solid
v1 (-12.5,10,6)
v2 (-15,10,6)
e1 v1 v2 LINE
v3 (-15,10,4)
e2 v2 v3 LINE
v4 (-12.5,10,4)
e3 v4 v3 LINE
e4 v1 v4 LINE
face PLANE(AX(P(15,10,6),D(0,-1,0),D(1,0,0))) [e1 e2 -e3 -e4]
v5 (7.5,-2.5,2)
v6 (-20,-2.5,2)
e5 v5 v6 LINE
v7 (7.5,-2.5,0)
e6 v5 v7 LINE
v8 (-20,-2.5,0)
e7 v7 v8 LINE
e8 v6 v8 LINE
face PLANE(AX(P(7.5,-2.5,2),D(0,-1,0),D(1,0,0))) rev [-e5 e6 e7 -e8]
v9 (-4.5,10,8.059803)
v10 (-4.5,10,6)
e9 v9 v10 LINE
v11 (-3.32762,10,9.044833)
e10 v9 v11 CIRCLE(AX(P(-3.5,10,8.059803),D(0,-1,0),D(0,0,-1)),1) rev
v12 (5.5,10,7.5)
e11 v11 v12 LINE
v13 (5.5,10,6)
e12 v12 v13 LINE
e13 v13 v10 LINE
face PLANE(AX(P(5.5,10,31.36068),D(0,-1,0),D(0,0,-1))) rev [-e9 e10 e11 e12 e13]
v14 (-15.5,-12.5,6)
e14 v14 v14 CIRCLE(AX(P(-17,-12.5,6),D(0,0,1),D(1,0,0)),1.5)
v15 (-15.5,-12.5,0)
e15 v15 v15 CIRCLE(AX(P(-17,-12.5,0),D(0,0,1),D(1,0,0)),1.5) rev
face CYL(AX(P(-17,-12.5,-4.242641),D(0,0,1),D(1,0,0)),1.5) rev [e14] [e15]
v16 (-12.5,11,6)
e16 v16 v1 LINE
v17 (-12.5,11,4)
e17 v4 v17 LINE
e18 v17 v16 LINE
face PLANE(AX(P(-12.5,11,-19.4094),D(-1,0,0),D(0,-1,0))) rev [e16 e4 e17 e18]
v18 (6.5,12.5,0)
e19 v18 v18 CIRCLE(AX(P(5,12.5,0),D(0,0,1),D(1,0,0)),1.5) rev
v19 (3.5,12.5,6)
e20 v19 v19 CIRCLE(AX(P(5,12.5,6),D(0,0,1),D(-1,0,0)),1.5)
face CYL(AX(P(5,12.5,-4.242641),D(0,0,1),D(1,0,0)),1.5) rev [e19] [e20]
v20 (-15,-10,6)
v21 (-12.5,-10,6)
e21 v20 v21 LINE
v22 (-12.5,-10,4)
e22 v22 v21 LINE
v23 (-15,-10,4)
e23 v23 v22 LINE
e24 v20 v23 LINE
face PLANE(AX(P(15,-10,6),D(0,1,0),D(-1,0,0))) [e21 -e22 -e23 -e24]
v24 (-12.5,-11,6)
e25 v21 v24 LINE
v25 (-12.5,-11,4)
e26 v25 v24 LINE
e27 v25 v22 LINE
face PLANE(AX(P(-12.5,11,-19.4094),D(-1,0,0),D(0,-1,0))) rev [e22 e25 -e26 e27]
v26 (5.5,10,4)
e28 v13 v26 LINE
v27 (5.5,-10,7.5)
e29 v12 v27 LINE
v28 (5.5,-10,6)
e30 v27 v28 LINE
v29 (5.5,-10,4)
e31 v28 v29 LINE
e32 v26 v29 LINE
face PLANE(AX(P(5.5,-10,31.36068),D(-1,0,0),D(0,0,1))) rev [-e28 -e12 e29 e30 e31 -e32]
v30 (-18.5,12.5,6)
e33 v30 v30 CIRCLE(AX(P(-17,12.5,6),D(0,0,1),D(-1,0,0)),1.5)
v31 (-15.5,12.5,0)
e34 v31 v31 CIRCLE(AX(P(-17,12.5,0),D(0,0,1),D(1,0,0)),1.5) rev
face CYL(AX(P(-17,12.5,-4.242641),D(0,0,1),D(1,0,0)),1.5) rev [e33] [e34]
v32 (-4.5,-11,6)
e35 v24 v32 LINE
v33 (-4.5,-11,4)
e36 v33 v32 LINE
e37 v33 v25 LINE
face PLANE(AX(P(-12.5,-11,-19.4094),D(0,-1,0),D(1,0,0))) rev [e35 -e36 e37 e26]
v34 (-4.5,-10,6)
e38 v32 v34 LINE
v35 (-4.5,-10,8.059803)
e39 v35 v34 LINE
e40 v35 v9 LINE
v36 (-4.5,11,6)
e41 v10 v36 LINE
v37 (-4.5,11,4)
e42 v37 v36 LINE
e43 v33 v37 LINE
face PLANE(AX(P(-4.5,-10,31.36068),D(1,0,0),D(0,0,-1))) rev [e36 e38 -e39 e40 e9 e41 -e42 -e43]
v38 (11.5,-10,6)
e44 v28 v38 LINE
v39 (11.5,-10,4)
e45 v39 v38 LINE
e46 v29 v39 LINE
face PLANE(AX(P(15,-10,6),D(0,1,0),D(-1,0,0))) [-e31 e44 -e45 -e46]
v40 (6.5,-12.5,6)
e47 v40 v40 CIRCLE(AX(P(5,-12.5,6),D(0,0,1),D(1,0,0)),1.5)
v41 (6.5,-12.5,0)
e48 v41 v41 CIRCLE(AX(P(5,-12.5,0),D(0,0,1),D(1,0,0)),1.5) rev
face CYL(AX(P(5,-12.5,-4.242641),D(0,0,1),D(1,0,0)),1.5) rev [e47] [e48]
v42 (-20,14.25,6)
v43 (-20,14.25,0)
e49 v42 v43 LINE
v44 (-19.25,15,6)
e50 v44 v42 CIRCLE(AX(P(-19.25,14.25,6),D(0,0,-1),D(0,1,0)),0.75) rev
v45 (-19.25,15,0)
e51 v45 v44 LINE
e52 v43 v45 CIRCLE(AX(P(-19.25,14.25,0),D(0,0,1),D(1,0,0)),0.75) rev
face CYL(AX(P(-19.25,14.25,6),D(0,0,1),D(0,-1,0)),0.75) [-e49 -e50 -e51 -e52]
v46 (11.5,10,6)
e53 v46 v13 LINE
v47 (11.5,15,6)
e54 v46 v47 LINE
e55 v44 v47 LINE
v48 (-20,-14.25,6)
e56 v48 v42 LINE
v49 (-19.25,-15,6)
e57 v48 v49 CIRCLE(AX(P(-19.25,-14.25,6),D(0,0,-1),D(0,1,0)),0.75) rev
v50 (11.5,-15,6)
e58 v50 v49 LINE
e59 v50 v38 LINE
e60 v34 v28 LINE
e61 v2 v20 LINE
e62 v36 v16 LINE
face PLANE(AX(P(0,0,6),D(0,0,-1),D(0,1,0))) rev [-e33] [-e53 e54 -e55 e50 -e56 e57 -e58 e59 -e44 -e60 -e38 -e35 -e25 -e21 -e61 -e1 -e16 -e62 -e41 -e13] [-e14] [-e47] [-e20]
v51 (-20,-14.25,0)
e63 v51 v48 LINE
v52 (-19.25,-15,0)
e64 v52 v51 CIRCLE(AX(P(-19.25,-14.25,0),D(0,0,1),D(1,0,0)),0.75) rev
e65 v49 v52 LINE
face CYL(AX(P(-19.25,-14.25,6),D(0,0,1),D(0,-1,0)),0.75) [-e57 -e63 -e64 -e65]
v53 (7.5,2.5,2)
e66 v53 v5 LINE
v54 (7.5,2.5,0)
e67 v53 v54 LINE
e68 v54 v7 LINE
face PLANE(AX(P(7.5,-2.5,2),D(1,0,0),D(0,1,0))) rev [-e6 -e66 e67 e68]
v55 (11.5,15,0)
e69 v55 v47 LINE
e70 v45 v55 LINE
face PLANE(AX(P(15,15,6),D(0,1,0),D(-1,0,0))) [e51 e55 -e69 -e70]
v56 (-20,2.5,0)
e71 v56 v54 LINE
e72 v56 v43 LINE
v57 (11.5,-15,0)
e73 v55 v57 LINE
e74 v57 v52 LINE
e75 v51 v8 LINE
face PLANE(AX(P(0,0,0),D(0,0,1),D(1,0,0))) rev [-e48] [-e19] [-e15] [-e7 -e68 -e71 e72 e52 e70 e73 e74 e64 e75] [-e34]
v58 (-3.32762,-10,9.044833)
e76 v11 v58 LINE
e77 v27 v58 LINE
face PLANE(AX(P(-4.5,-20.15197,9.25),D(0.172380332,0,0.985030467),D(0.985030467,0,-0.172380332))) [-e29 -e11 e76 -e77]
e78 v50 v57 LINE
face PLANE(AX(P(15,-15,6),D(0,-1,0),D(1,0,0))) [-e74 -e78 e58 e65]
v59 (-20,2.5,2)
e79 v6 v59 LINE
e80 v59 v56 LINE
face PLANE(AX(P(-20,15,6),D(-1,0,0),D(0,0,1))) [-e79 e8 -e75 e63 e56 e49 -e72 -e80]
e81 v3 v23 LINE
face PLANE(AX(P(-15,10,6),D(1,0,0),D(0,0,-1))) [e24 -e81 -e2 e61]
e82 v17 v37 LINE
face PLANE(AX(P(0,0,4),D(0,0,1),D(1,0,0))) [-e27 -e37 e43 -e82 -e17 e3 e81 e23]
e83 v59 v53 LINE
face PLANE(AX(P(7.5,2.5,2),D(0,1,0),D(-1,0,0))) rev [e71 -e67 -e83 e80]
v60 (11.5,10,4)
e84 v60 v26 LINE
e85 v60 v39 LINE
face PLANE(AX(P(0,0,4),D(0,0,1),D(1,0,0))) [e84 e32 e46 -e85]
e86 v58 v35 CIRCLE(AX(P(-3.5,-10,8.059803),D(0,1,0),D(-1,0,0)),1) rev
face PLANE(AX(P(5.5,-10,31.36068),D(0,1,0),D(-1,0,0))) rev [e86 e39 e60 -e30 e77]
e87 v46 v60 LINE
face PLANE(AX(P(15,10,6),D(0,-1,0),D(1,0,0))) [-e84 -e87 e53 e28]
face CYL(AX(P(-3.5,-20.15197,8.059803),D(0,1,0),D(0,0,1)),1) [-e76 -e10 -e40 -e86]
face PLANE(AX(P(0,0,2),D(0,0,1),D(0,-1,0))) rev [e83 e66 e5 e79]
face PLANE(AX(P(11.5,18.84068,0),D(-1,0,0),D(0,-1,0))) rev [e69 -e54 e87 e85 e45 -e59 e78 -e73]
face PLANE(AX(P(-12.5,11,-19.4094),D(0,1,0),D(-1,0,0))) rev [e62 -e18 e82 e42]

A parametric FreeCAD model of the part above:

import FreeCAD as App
import Part
import Sketcher
Q = App.Units.Quantity


def edges_at(feature, points):
    """Names of the edges that pass closest to the given points."""
    edges = feature.Shape.Edges
    near = lambda p: min(range(len(edges)), key=lambda i: edges[i].distToShape(Part.Vertex(*p))[0])
    return sorted({f"Edge{near(p) + 1}" for p in points})

doc = App.newDocument("Part")
body = doc.addObject("PartDesign::Body", "Body")

# Sketch on XY plane
sketch1 = doc.addObject("Sketcher::SketchObject", "Sketch")
body.addObject(sketch1)
sketch1.AttachmentSupport = (doc.XY_Plane, [""])
sketch1.MapMode = "FlatFace"
sketch1.addGeometry(Part.LineSegment(App.Vector(-15, 10, 0), App.Vector(-15, -10, 0)), False)
sketch1.addGeometry(Part.LineSegment(App.Vector(-15, -10, 0), App.Vector(15, -10, 0)), False)
sketch1.addGeometry(Part.LineSegment(App.Vector(15, -10, 0), App.Vector(15, 10, 0)), False)
sketch1.addGeometry(Part.LineSegment(App.Vector(15, 10, 0), App.Vector(-15, 10, 0)), False)
sketch1.addConstraint(Sketcher.Constraint("Coincident", 0, 2, 1, 1))
sketch1.addConstraint(Sketcher.Constraint("Coincident", 1, 2, 2, 1))
sketch1.addConstraint(Sketcher.Constraint("Coincident", 2, 2, 3, 1))
sketch1.addConstraint(Sketcher.Constraint("Coincident", 3, 2, 0, 1))
sketch1.addConstraint(Sketcher.Constraint("Vertical", 0))
sketch1.addConstraint(Sketcher.Constraint("Horizontal", 1))
sketch1.addConstraint(Sketcher.Constraint("Vertical", 2))
sketch1.addConstraint(Sketcher.Constraint("Horizontal", 3))
sketch1.addConstraint(Sketcher.Constraint("Symmetric", 0, 2, 2, 2, -1, 1))
sketch1.addConstraint(Sketcher.Constraint("DistanceX", 1, 1, 1, 2, Q("30 mm")))
sketch1.addConstraint(Sketcher.Constraint("DistanceY", 0, 2, 0, 1, Q("20 mm")))
pad1 = doc.addObject("PartDesign::Pad", "Pad")
body.addObject(pad1)
pad1.Profile = sketch1
pad1.Length = 1

# Sketch on XY plane
sketch2 = doc.addObject("Sketcher::SketchObject", "Sketch001")
body.addObject(sketch2)
sketch2.AttachmentSupport = (doc.XY_Plane, [""])
sketch2.MapMode = "FlatFace"
sketch2.addGeometry(Part.LineSegment(App.Vector(-15, -10, 0), App.Vector(15, -10, 0)), False)
sketch2.addGeometry(Part.LineSegment(App.Vector(15, -10, 0), App.Vector(15, -15, 0)), False)
sketch2.addGeometry(Part.LineSegment(App.Vector(15, -15, 0), App.Vector(-20, -15, 0)), False)
sketch2.addGeometry(Part.LineSegment(App.Vector(-20, -15, 0), App.Vector(-20, 15, 0)), False)
sketch2.addGeometry(Part.LineSegment(App.Vector(-20, 15, 0), App.Vector(15, 15, 0)), False)
sketch2.addGeometry(Part.LineSegment(App.Vector(15, 15, 0), App.Vector(15, 10, 0)), False)
sketch2.addGeometry(Part.LineSegment(App.Vector(15, 10, 0), App.Vector(-15, 10, 0)), False)
sketch2.addGeometry(Part.LineSegment(App.Vector(-15, 10, 0), App.Vector(-15, -10, 0)), False)
sketch2.addConstraint(Sketcher.Constraint("Coincident", 0, 2, 1, 1))
sketch2.addConstraint(Sketcher.Constraint("Coincident", 1, 2, 2, 1))
sketch2.addConstraint(Sketcher.Constraint("Coincident", 2, 2, 3, 1))
sketch2.addConstraint(Sketcher.Constraint("Coincident", 3, 2, 4, 1))
sketch2.addConstraint(Sketcher.Constraint("Coincident", 4, 2, 5, 1))
sketch2.addConstraint(Sketcher.Constraint("Coincident", 5, 2, 6, 1))
sketch2.addConstraint(Sketcher.Constraint("Coincident", 6, 2, 7, 1))
sketch2.addConstraint(Sketcher.Constraint("Coincident", 7, 2, 0, 1))
sketch2.addConstraint(Sketcher.Constraint("Horizontal", 0))
sketch2.addConstraint(Sketcher.Constraint("Vertical", 1))
sketch2.addConstraint(Sketcher.Constraint("Horizontal", 2))
sketch2.addConstraint(Sketcher.Constraint("Vertical", 3))
sketch2.addConstraint(Sketcher.Constraint("Horizontal", 4))
sketch2.addConstraint(Sketcher.Constraint("Vertical", 5))
sketch2.addConstraint(Sketcher.Constraint("Horizontal", 6))
sketch2.addConstraint(Sketcher.Constraint("Vertical", 7))
sketch2.addConstraint(Sketcher.Constraint("Symmetric", 0, 2, 6, 2, -1, 1))
sketch2.addConstraint(Sketcher.Constraint("Symmetric", 1, 2, 4, 2, -1))
sketch2.addConstraint(Sketcher.Constraint("Equal", 6, 3))
sketch2.addConstraint(Sketcher.Constraint("DistanceX", 0, 1, 0, 2, Q("30 mm")))
sketch2.addConstraint(Sketcher.Constraint("DistanceX", 2, 2, 2, 1, Q("35 mm")))
sketch2.addConstraint(Sketcher.Constraint("DistanceY", 1, 2, 1, 1, Q("5 mm")))
pad2 = doc.addObject("PartDesign::Pad", "Pad001")
body.addObject(pad2)
pad2.Profile = sketch2
pad2.Length = 6

# Sketch on XY plane
sketch3 = doc.addObject("Sketcher::SketchObject", "Sketch002")
body.addObject(sketch3)
sketch3.AttachmentSupport = (doc.XY_Plane, [""])
sketch3.MapMode = "FlatFace"
sketch3.AttachmentOffset = App.Placement(App.Vector(0, 0, 1), App.Rotation())
sketch3.addGeometry(Part.LineSegment(App.Vector(-4.5, 10, 0), App.Vector(-4.5, -10, 0)), False)
sketch3.addGeometry(Part.LineSegment(App.Vector(-4.5, -10, 0), App.Vector(5.5, -10, 0)), False)
sketch3.addGeometry(Part.LineSegment(App.Vector(5.5, -10, 0), App.Vector(5.5, 10, 0)), False)
sketch3.addGeometry(Part.LineSegment(App.Vector(5.5, 10, 0), App.Vector(-4.5, 10, 0)), False)
sketch3.addConstraint(Sketcher.Constraint("Coincident", 0, 2, 1, 1))
sketch3.addConstraint(Sketcher.Constraint("Coincident", 1, 2, 2, 1))
sketch3.addConstraint(Sketcher.Constraint("Coincident", 2, 2, 3, 1))
sketch3.addConstraint(Sketcher.Constraint("Coincident", 3, 2, 0, 1))
sketch3.addConstraint(Sketcher.Constraint("Vertical", 0))
sketch3.addConstraint(Sketcher.Constraint("Horizontal", 1))
sketch3.addConstraint(Sketcher.Constraint("Vertical", 2))
sketch3.addConstraint(Sketcher.Constraint("Horizontal", 3))
sketch3.addConstraint(Sketcher.Constraint("DistanceX", 1, 1, 1, 2, Q("10 mm")))
sketch3.addConstraint(Sketcher.Constraint("DistanceY", 0, 2, 0, 1, Q("20 mm")))
sketch3.addConstraint(Sketcher.Constraint("DistanceY", 0, 2, -1, 1, Q("10 mm")))
sketch3.addConstraint(Sketcher.Constraint("DistanceX", 0, 2, -1, 1, Q("4.5 mm")))
pad3 = doc.addObject("PartDesign::Pad", "Pad002")
body.addObject(pad3)
pad3.Profile = sketch3
pad3.Length = 6.5

# Sketch on XY plane
sketch4 = doc.addObject("Sketcher::SketchObject", "Sketch003")
body.addObject(sketch4)
sketch4.AttachmentSupport = (doc.XY_Plane, [""])
sketch4.MapMode = "FlatFace"
sketch4.AttachmentOffset = App.Placement(App.Vector(0, 0, 1), App.Rotation())
sketch4.addGeometry(Part.LineSegment(App.Vector(-15, 10, 0), App.Vector(-15, -10, 0)), False)
sketch4.addGeometry(Part.LineSegment(App.Vector(-15, -10, 0), App.Vector(-4.5, -10, 0)), False)
sketch4.addGeometry(Part.LineSegment(App.Vector(-4.5, -10, 0), App.Vector(-4.5, 10, 0)), False)
sketch4.addGeometry(Part.LineSegment(App.Vector(-4.5, 10, 0), App.Vector(-15, 10, 0)), False)
sketch4.addGeometry(Part.LineSegment(App.Vector(5.5, 10, 0), App.Vector(5.5, -10, 0)), False)
sketch4.addGeometry(Part.LineSegment(App.Vector(5.5, -10, 0), App.Vector(15, -10, 0)), False)
sketch4.addGeometry(Part.LineSegment(App.Vector(15, -10, 0), App.Vector(15, 10, 0)), False)
sketch4.addGeometry(Part.LineSegment(App.Vector(15, 10, 0), App.Vector(5.5, 10, 0)), False)
sketch4.addConstraint(Sketcher.Constraint("Coincident", 0, 2, 1, 1))
sketch4.addConstraint(Sketcher.Constraint("Coincident", 1, 2, 2, 1))
sketch4.addConstraint(Sketcher.Constraint("Coincident", 2, 2, 3, 1))
sketch4.addConstraint(Sketcher.Constraint("Coincident", 3, 2, 0, 1))
sketch4.addConstraint(Sketcher.Constraint("Coincident", 4, 2, 5, 1))
sketch4.addConstraint(Sketcher.Constraint("Coincident", 5, 2, 6, 1))
sketch4.addConstraint(Sketcher.Constraint("Coincident", 6, 2, 7, 1))
sketch4.addConstraint(Sketcher.Constraint("Coincident", 7, 2, 4, 1))
sketch4.addConstraint(Sketcher.Constraint("Vertical", 0))
sketch4.addConstraint(Sketcher.Constraint("Horizontal", 1))
sketch4.addConstraint(Sketcher.Constraint("Vertical", 2))
sketch4.addConstraint(Sketcher.Constraint("Horizontal", 3))
sketch4.addConstraint(Sketcher.Constraint("Vertical", 4))
sketch4.addConstraint(Sketcher.Constraint("Horizontal", 5))
sketch4.addConstraint(Sketcher.Constraint("Vertical", 6))
sketch4.addConstraint(Sketcher.Constraint("Horizontal", 7))
sketch4.addConstraint(Sketcher.Constraint("Symmetric", 3, 2, 5, 2, -1, 1))
sketch4.addConstraint(Sketcher.Constraint("Horizontal", 1, 2, 4, 2))
sketch4.addConstraint(Sketcher.Constraint("Horizontal", 3, 2, 6, 2))
sketch4.addConstraint(Sketcher.Constraint("DistanceY", 0, 2, 0, 1, Q("20 mm")))
sketch4.addConstraint(Sketcher.Constraint("DistanceX", 1, 1, 1, 2, Q("10.5 mm")))
sketch4.addConstraint(Sketcher.Constraint("DistanceX", 5, 1, 5, 2, Q("9.5 mm")))
sketch4.addConstraint(Sketcher.Constraint("DistanceX", 0, 2, -1, 1, Q("15 mm")))
pad4 = doc.addObject("PartDesign::Pad", "Pad003")
body.addObject(pad4)
pad4.Profile = sketch4
pad4.Length = 3

# Sketch on XZ plane
sketch5 = doc.addObject("Sketcher::SketchObject", "Sketch004")
body.addObject(sketch5)
sketch5.AttachmentSupport = (doc.XZ_Plane, [""])
sketch5.MapMode = "FlatFace"
sketch5.AttachmentOffset = App.Placement(App.Vector(0, 0, -10), App.Rotation())
sketch5.addGeometry(Part.LineSegment(App.Vector(-4.5, 7.5, 0), App.Vector(-4.5, 9.25, 0)), False)
sketch5.addGeometry(Part.LineSegment(App.Vector(-4.5, 9.25, 0), App.Vector(5.5, 7.5, 0)), False)
sketch5.addGeometry(Part.LineSegment(App.Vector(5.5, 7.5, 0), App.Vector(-4.5, 7.5, 0)), False)
sketch5.addConstraint(Sketcher.Constraint("Coincident", 0, 2, 1, 1))
sketch5.addConstraint(Sketcher.Constraint("Coincident", 1, 2, 2, 1))
sketch5.addConstraint(Sketcher.Constraint("Coincident", 2, 2, 0, 1))
sketch5.addConstraint(Sketcher.Constraint("Vertical", 0))
sketch5.addConstraint(Sketcher.Constraint("Horizontal", 2))
sketch5.addConstraint(Sketcher.Constraint("DistanceX", 2, 2, 2, 1, Q("10 mm")))
sketch5.addConstraint(Sketcher.Constraint("DistanceY", 0, 1, 0, 2, Q("1.75 mm")))
sketch5.addConstraint(Sketcher.Constraint("DistanceX", 0, 2, -1, 1, Q("4.5 mm")))
sketch5.addConstraint(Sketcher.Constraint("DistanceY", -1, 1, 1, 2, Q("7.5 mm")))
pad5 = doc.addObject("PartDesign::Pad", "Pad004")
body.addObject(pad5)
pad5.Profile = sketch5
pad5.Length = 20

# Sketch on XY plane
sketch6 = doc.addObject("Sketcher::SketchObject", "Sketch005")
body.addObject(sketch6)
sketch6.AttachmentSupport = (doc.XY_Plane, [""])
sketch6.MapMode = "FlatFace"
sketch6.AttachmentOffset = App.Placement(App.Vector(0, 0, 6), App.Rotation())
sketch6.addGeometry(Part.Circle(App.Vector(-17, -12.5, 0), App.Vector(0, 0, 1), 1.5), False)
sketch6.addGeometry(Part.Circle(App.Vector(5, -12.5, 0), App.Vector(0, 0, 1), 1.5), False)
sketch6.addGeometry(Part.Circle(App.Vector(5, 12.5, 0), App.Vector(0, 0, 1), 1.5), False)
sketch6.addGeometry(Part.Circle(App.Vector(-17, 12.5, 0), App.Vector(0, 0, 1), 1.5), False)
sketch6.addConstraint(Sketcher.Constraint("Equal", 0, 1))
sketch6.addConstraint(Sketcher.Constraint("Equal", 1, 2))
sketch6.addConstraint(Sketcher.Constraint("Equal", 2, 3))
sketch6.addConstraint(Sketcher.Constraint("Symmetric", 1, 3, 2, 3, -1))
sketch6.addConstraint(Sketcher.Constraint("Symmetric", 0, 3, 3, 3, -1))
sketch6.addConstraint(Sketcher.Constraint("Horizontal", 0, 3, 1, 3))
sketch6.addConstraint(Sketcher.Constraint("Diameter", 0, Q("3 mm")))
sketch6.addConstraint(Sketcher.Constraint("DistanceX", 0, 3, -1, 1, Q("17 mm")))
sketch6.addConstraint(Sketcher.Constraint("DistanceX", -1, 1, 1, 3, Q("5 mm")))
sketch6.addConstraint(Sketcher.Constraint("DistanceY", 1, 3, 2, 3, Q("25 mm")))
pocket1 = doc.addObject("PartDesign::Pocket", "Pocket")
body.addObject(pocket1)
pocket1.Profile = sketch6
pocket1.Length = 6
doc.recompute()

fillet = doc.addObject("PartDesign::Fillet", "Fillet")
body.addObject(fillet)
fillet.Base = (pocket1, edges_at(pocket1, [(-4.5, 0, 9.25)]))
fillet.Radius = 1
doc.recompute()

fillet2 = doc.addObject("PartDesign::Fillet", "Fillet001")
body.addObject(fillet2)
fillet2.Base = (fillet, edges_at(fillet, [(15, -15, 3)]))
fillet2.Radius = 0.5
doc.recompute()

fillet3 = doc.addObject("PartDesign::Fillet", "Fillet002")
body.addObject(fillet3)
fillet3.Base = (fillet2, edges_at(fillet2, [(15, 15, 3)]))
fillet3.Radius = 0.5
doc.recompute()

fillet4 = doc.addObject("PartDesign::Fillet", "Fillet003")
body.addObject(fillet4)
fillet4.Base = (fillet3, edges_at(fillet3, [(-20, 15, 3)]))
fillet4.Radius = 0.75
doc.recompute()

fillet5 = doc.addObject("PartDesign::Fillet", "Fillet004")
body.addObject(fillet5)
fillet5.Base = (fillet4, edges_at(fillet4, [(-20, -15, 3)]))
fillet5.Radius = 0.75

# Sketch on XY plane
sketch7 = doc.addObject("Sketcher::SketchObject", "Sketch006")
body.addObject(sketch7)
sketch7.AttachmentSupport = (doc.XY_Plane, [""])
sketch7.MapMode = "FlatFace"
sketch7.AttachmentOffset = App.Placement(App.Vector(0, 0, 6), App.Rotation())
sketch7.addGeometry(Part.LineSegment(App.Vector(-12.5, 11, 0), App.Vector(-12.5, -11, 0)), False)
sketch7.addGeometry(Part.LineSegment(App.Vector(-12.5, -11, 0), App.Vector(-4.5, -11, 0)), False)
sketch7.addGeometry(Part.LineSegment(App.Vector(-4.5, -11, 0), App.Vector(-4.5, 11, 0)), False)
sketch7.addGeometry(Part.LineSegment(App.Vector(-4.5, 11, 0), App.Vector(-12.5, 11, 0)), False)
sketch7.addConstraint(Sketcher.Constraint("Coincident", 0, 2, 1, 1))
sketch7.addConstraint(Sketcher.Constraint("Coincident", 1, 2, 2, 1))
sketch7.addConstraint(Sketcher.Constraint("Coincident", 2, 2, 3, 1))
sketch7.addConstraint(Sketcher.Constraint("Coincident", 3, 2, 0, 1))
sketch7.addConstraint(Sketcher.Constraint("Vertical", 0))
sketch7.addConstraint(Sketcher.Constraint("Horizontal", 1))
sketch7.addConstraint(Sketcher.Constraint("Vertical", 2))
sketch7.addConstraint(Sketcher.Constraint("Horizontal", 3))
sketch7.addConstraint(Sketcher.Constraint("DistanceX", 1, 1, 1, 2, Q("8 mm")))
sketch7.addConstraint(Sketcher.Constraint("DistanceY", 0, 2, 0, 1, Q("22 mm")))
sketch7.addConstraint(Sketcher.Constraint("DistanceY", 0, 2, -1, 1, Q("11 mm")))
sketch7.addConstraint(Sketcher.Constraint("DistanceX", 0, 2, -1, 1, Q("12.5 mm")))
pocket2 = doc.addObject("PartDesign::Pocket", "Pocket001")
body.addObject(pocket2)
pocket2.Profile = sketch7
pocket2.Length = 2

# Sketch on XY plane
sketch8 = doc.addObject("Sketcher::SketchObject", "Sketch007")
body.addObject(sketch8)
sketch8.AttachmentSupport = (doc.XY_Plane, [""])
sketch8.MapMode = "FlatFace"
sketch8.addGeometry(Part.LineSegment(App.Vector(-20, -2.5, 0), App.Vector(-20, 2.5, 0)), False)
sketch8.addGeometry(Part.LineSegment(App.Vector(-20, 2.5, 0), App.Vector(7.5, 2.5, 0)), False)
sketch8.addGeometry(Part.LineSegment(App.Vector(7.5, 2.5, 0), App.Vector(7.5, -2.5, 0)), False)
sketch8.addGeometry(Part.LineSegment(App.Vector(7.5, -2.5, 0), App.Vector(-20, -2.5, 0)), False)
sketch8.addConstraint(Sketcher.Constraint("Coincident", 0, 2, 1, 1))
sketch8.addConstraint(Sketcher.Constraint("Coincident", 1, 2, 2, 1))
sketch8.addConstraint(Sketcher.Constraint("Coincident", 2, 2, 3, 1))
sketch8.addConstraint(Sketcher.Constraint("Coincident", 3, 2, 0, 1))
sketch8.addConstraint(Sketcher.Constraint("Vertical", 0))
sketch8.addConstraint(Sketcher.Constraint("Horizontal", 1))
sketch8.addConstraint(Sketcher.Constraint("Vertical", 2))
sketch8.addConstraint(Sketcher.Constraint("Horizontal", 3))
sketch8.addConstraint(Sketcher.Constraint("DistanceY", 0, 1, 0, 2, Q("5 mm")))
sketch8.addConstraint(Sketcher.Constraint("DistanceX", 1, 1, 1, 2, Q("27.5 mm")))
sketch8.addConstraint(Sketcher.Constraint("DistanceX", 0, 2, -1, 1, Q("20 mm")))
sketch8.addConstraint(Sketcher.Constraint("DistanceY", -1, 1, 0, 2, Q("2.5 mm")))
pocket3 = doc.addObject("PartDesign::Pocket", "Pocket002")
body.addObject(pocket3)
pocket3.Profile = sketch8
pocket3.Length = 2
pocket3.Reversed = True

# Sketch on XY plane
sketch9 = doc.addObject("Sketcher::SketchObject", "Sketch008")
body.addObject(sketch9)
sketch9.AttachmentSupport = (doc.XY_Plane, [""])
sketch9.MapMode = "FlatFace"
sketch9.AttachmentOffset = App.Placement(App.Vector(0, 0, 4), App.Rotation())
sketch9.addGeometry(Part.LineSegment(App.Vector(11.5, 18.84068, 0), App.Vector(11.5, -22.787047, 0)), False)
sketch9.addGeometry(Part.LineSegment(App.Vector(11.5, -22.787047, 0), App.Vector(32.282146, -22.787047, 0)), False)
sketch9.addGeometry(Part.LineSegment(App.Vector(32.282146, -22.787047, 0), App.Vector(32.282146, 18.84068, 0)), False)
sketch9.addGeometry(Part.LineSegment(App.Vector(32.282146, 18.84068, 0), App.Vector(11.5, 18.84068, 0)), False)
sketch9.addConstraint(Sketcher.Constraint("Coincident", 0, 2, 1, 1))
sketch9.addConstraint(Sketcher.Constraint("Coincident", 1, 2, 2, 1))
sketch9.addConstraint(Sketcher.Constraint("Coincident", 2, 2, 3, 1))
sketch9.addConstraint(Sketcher.Constraint("Coincident", 3, 2, 0, 1))
sketch9.addConstraint(Sketcher.Constraint("Vertical", 0))
sketch9.addConstraint(Sketcher.Constraint("Horizontal", 1))
sketch9.addConstraint(Sketcher.Constraint("Vertical", 2))
sketch9.addConstraint(Sketcher.Constraint("Horizontal", 3))
sketch9.addConstraint(Sketcher.Constraint("DistanceX", -1, 1, 0, 2, Q("11.5 mm")))
sketch9.addConstraint(Sketcher.Constraint("DistanceX", 1, 1, 1, 2, Q("20.782146 mm")))
sketch9.addConstraint(Sketcher.Constraint("DistanceY", 0, 2, 0, 1, Q("41.627726 mm")))
sketch9.addConstraint(Sketcher.Constraint("DistanceY", -1, 1, 2, 2, Q("18.84068 mm")))
pocket4 = doc.addObject("PartDesign::Pocket", "Pocket003")
body.addObject(pocket4)
pocket4.Profile = sketch9
pocket4.Type = "ThroughAll"
pocket4.Midplane = True

doc.recompute()
